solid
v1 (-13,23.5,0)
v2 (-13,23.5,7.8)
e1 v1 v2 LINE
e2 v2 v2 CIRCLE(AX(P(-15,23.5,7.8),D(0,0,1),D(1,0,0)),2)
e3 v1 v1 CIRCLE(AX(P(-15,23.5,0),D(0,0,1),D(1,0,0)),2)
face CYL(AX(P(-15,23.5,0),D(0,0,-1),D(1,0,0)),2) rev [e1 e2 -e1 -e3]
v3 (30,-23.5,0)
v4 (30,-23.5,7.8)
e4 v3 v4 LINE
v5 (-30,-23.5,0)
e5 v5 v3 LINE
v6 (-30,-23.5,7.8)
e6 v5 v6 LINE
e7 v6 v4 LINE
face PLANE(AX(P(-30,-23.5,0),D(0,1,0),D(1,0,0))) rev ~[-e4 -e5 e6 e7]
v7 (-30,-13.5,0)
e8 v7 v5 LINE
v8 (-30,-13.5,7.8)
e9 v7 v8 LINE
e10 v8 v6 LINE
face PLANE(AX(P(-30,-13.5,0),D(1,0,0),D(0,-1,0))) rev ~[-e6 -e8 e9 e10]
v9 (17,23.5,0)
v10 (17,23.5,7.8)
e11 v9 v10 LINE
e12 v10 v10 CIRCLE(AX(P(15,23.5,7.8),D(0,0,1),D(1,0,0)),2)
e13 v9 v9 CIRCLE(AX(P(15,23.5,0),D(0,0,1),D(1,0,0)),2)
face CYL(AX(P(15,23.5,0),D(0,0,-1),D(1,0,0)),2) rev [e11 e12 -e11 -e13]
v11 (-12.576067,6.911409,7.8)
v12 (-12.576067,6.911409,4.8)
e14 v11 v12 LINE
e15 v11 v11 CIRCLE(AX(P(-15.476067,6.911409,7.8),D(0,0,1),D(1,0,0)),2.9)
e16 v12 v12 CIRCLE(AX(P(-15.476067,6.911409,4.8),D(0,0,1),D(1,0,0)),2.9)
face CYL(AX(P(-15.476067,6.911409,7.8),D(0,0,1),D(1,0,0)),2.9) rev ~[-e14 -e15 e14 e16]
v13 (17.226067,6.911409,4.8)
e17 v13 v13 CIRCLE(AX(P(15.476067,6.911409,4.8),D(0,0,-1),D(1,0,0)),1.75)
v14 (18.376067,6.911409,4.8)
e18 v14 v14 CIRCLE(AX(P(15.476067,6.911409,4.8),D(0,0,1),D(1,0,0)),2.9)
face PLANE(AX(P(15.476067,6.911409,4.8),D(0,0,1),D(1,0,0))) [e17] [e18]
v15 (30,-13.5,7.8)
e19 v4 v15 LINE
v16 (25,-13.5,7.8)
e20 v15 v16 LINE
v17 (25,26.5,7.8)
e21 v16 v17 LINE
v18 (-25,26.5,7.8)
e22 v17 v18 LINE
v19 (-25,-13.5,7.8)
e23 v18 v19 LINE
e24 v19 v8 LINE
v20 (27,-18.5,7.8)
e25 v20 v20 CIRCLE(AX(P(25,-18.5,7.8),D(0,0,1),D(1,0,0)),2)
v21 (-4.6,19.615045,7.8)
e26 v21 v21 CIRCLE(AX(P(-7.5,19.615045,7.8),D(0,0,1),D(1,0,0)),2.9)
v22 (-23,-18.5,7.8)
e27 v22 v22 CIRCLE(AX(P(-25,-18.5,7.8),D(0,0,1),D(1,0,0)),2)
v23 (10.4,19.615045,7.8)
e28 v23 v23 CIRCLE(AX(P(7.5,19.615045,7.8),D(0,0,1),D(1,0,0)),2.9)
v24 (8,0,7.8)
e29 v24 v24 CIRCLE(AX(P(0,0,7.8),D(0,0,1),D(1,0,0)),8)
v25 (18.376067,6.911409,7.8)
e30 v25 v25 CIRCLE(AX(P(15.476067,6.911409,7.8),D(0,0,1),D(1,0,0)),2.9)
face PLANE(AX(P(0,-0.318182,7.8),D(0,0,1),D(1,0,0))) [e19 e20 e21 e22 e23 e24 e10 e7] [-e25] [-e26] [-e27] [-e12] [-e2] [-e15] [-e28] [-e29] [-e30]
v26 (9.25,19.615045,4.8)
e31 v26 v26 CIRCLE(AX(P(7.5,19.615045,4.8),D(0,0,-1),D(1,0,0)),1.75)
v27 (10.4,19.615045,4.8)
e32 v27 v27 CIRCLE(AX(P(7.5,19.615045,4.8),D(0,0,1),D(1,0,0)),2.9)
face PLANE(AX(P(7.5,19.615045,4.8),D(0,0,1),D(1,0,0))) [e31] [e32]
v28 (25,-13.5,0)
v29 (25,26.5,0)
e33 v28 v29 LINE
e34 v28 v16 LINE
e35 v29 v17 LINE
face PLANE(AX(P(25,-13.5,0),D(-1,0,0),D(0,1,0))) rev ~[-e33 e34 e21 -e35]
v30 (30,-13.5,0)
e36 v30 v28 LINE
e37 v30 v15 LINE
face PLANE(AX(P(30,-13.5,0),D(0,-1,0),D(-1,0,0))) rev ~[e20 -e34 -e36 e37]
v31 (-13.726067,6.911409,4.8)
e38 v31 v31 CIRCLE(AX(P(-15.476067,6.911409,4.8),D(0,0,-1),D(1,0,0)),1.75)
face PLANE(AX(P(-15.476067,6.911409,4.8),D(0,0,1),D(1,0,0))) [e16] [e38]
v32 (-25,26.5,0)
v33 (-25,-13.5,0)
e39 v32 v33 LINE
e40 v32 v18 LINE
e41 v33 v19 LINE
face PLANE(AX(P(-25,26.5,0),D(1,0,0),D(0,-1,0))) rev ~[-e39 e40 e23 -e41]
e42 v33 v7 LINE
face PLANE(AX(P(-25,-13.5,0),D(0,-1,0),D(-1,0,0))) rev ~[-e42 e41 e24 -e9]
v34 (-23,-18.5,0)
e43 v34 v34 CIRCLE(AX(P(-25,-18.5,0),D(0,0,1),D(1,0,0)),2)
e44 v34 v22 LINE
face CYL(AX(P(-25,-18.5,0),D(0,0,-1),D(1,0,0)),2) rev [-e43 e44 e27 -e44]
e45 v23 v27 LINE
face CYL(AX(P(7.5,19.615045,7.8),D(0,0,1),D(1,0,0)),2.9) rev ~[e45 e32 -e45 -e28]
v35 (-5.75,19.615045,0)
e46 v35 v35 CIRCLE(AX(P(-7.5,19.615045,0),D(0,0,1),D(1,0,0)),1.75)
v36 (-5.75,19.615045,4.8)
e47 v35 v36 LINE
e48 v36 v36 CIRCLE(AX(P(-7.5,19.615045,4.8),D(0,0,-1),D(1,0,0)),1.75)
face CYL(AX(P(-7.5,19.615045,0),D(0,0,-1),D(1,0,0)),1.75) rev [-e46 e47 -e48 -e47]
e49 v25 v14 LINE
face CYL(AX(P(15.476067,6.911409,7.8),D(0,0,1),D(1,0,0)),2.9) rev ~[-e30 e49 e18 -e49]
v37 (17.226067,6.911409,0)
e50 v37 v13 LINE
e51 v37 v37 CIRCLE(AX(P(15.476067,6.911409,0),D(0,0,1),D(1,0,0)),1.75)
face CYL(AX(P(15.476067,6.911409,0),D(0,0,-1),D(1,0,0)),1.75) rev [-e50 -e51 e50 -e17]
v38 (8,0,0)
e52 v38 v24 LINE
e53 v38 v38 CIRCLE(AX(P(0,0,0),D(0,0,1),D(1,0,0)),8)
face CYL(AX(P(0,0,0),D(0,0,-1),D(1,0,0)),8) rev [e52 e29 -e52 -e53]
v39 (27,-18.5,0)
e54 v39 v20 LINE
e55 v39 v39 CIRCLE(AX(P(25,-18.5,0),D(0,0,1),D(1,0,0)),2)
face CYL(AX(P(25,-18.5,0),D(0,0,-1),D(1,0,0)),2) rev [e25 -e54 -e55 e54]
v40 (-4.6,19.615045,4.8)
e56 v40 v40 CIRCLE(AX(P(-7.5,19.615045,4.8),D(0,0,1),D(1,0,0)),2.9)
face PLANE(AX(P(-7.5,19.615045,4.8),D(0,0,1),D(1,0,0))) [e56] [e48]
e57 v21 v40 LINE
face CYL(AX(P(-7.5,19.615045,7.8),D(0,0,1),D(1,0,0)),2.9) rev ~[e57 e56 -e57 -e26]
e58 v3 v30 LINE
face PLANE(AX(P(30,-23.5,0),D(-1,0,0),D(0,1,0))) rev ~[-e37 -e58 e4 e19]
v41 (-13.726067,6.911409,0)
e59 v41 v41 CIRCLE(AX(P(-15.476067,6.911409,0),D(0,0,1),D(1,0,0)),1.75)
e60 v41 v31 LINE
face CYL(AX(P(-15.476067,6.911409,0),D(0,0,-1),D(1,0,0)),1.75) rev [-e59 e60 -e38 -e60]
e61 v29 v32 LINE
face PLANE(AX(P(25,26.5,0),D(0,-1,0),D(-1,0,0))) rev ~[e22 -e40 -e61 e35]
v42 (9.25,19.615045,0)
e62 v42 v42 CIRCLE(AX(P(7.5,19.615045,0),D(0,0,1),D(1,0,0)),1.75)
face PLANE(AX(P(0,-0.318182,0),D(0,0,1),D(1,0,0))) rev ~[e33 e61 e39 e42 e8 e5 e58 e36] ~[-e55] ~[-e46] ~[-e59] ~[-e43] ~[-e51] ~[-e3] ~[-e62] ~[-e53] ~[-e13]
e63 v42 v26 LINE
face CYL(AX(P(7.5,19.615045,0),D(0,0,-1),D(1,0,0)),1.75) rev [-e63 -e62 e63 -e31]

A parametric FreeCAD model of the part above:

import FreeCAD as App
import Part
import Sketcher
Q = App.Units.Quantity


def add_polygon(sketch, points):
    """Adds a closed chain of lines whose ends are joined by coincident constraints."""
    first, n = sketch.GeometryCount, len(points)
    for a, b in zip(points, points[1:] + points[:1]):
        sketch.addGeometry(Part.LineSegment(App.Vector(*a, 0), App.Vector(*b, 0)), False)
    for i in range(n):
        sketch.addConstraint(Sketcher.Constraint("Coincident", first + i, 2, first + (i + 1) % n, 1))

doc = App.newDocument("Part")
body = doc.addObject("PartDesign::Body", "Body")

# Sketch on XY plane
sketch1 = body.newObject("Sketcher::SketchObject", "Sketch")
sketch1.AttachmentSupport = (doc.getObject("XY_Plane"), [""])
sketch1.MapMode = "FlatFace"
add_polygon(sketch1, [(30, -23.5), (30, -13.5), (25, -13.5), (25, 26.5), (-25, 26.5), (-25, -13.5), (-30, -13.5), (-30, -23.5)])  # lines 0-7
sketch1.addGeometry(Part.Circle(App.Vector(-25, -18.5, 0), App.Vector(0, 0, 1), 2), False)  # 8
sketch1.addGeometry(Part.Circle(App.Vector(25, -18.5, 0), App.Vector(0, 0, 1), 2), False)  # 9
sketch1.addGeometry(Part.Circle(App.Vector(0, 0, 0), App.Vector(0, 0, 1), 8), False)  # 10
sketch1.addGeometry(Part.Circle(App.Vector(-15.476067, 6.911409, 0), App.Vector(0, 0, 1), 1.75), False)  # 11
sketch1.addGeometry(Part.Circle(App.Vector(-15, 23.5, 0), App.Vector(0, 0, 1), 2), False)  # 12
sketch1.addGeometry(Part.Circle(App.Vector(-7.5, 19.615045, 0), App.Vector(0, 0, 1), 1.75), False)  # 13
sketch1.addGeometry(Part.Circle(App.Vector(15.476067, 6.911409, 0), App.Vector(0, 0, 1), 1.75), False)  # 14
sketch1.addGeometry(Part.Circle(App.Vector(7.5, 19.615045, 0), App.Vector(0, 0, 1), 1.75), False)  # 15
sketch1.addGeometry(Part.Circle(App.Vector(15, 23.5, 0), App.Vector(0, 0, 1), 2), False)  # 16
sketch1.addConstraint([
    Sketcher.Constraint("Vertical", 0),
    Sketcher.Constraint("Horizontal", 1),
    Sketcher.Constraint("Vertical", 2),
    Sketcher.Constraint("Horizontal", 3),
    Sketcher.Constraint("Vertical", 4),
    Sketcher.Constraint("Horizontal", 5),
    Sketcher.Constraint("Vertical", 6),
    Sketcher.Constraint("Horizontal", 7),
    Sketcher.Constraint("Coincident", 10, 3, -1, 1),
    Sketcher.Constraint("Equal", 8, 9),
    Sketcher.Constraint("Equal", 9, 12),
    Sketcher.Constraint("Equal", 11, 13),
    Sketcher.Constraint("Equal", 13, 14),
    Sketcher.Constraint("Equal", 14, 15),
    Sketcher.Constraint("Equal", 12, 16),
    Sketcher.Constraint("Symmetric", 8, 3, 9, 3, -2),
    Sketcher.Constraint("Symmetric", 11, 3, 14, 3, -2),
    Sketcher.Constraint("Symmetric", 13, 3, 15, 3, -2),
    Sketcher.Constraint("Symmetric", 12, 3, 16, 3, -2),
    Sketcher.Constraint("Symmetric", 1, 2, 4, 2, -2),
    Sketcher.Constraint("Vertical", 9, 3, 1, 2),
    Sketcher.Constraint("Equal", 1, 5),
    Sketcher.Constraint("Diameter", 8, Q("4 mm")),
    Sketcher.Constraint("Diameter", 10, Q("16 mm")),
    Sketcher.Constraint("Diameter", 11, Q("3.5 mm")),
    Sketcher.Constraint("DistanceX", 1, 2, 1, 1, Q("5 mm")),
    Sketcher.Constraint("DistanceX", 3, 2, 3, 1, Q("50 mm")),
    Sketcher.Constraint("DistanceY", 0, 1, 0, 2, Q("10 mm")),
    Sketcher.Constraint("DistanceY", 2, 1, 2, 2, Q("40 mm")),
    Sketcher.Constraint("DistanceX", 12, 3, -1, 1, Q("15 mm")),
    Sketcher.Constraint("DistanceY", 8, 3, 12, 3, Q("42 mm")),
    Sketcher.Constraint("DistanceX", 13, 3, 15, 3, Q("15 mm")),
    Sketcher.Constraint("DistanceY", 9, 3, 0, 2, Q("5 mm")),
    Sketcher.Constraint("DistanceY", 8, 3, -1, 1, Q("18.5 mm")),
    Sketcher.Constraint("DistanceY", -1, 1, 11, 3, Q("6.911409 mm")),
    Sketcher.Constraint("DistanceX", 11, 3, -1, 1, Q("15.476067 mm")),
    Sketcher.Constraint("DistanceY", -1, 1, 13, 3, Q("19.615045 mm")),
])
pad1 = body.newObject("PartDesign::Pad", "Pad")
pad1.Profile = sketch1
pad1.Length = 7.8

# Sketch on XY plane
sketch2 = body.newObject("Sketcher::SketchObject", "Sketch001")
sketch2.AttachmentSupport = (doc.getObject("XY_Plane"), [""])
sketch2.MapMode = "FlatFace"
sketch2.AttachmentOffset = App.Placement(App.Vector(0, 0, 7.8), App.Rotation())
sketch2.addGeometry([
    Part.Circle(App.Vector(-7.5, 19.615045, 0), App.Vector(0, 0, 1), 2.9),
    Part.Circle(App.Vector(7.5, 19.615045, 0), App.Vector(0, 0, 1), 2.9),
    Part.Circle(App.Vector(15.476067, 6.911409, 0), App.Vector(0, 0, 1), 2.9),
    Part.Circle(App.Vector(-15.476067, 6.911409, 0), App.Vector(0, 0, 1), 2.9),
], False)
sketch2.addConstraint([
    Sketcher.Constraint("Equal", 0, 1),
    Sketcher.Constraint("Equal", 1, 2),
    Sketcher.Constraint("Equal", 2, 3),
    Sketcher.Constraint("Symmetric", 0, 3, 1, 3, -2),
    Sketcher.Constraint("Symmetric", 2, 3, 3, 3, -2),
    Sketcher.Constraint("Diameter", 0, Q("5.8 mm")),
    Sketcher.Constraint("DistanceX", 0, 3, 1, 3, Q("15 mm")),
    Sketcher.Constraint("DistanceY", -1, 1, 2, 3, Q("6.911409 mm")),
    Sketcher.Constraint("DistanceY", -1, 1, 0, 3, Q("19.615045 mm")),
    Sketcher.Constraint("DistanceX", -1, 1, 2, 3, Q("15.476067 mm")),
])
pocket1 = body.newObject("PartDesign::Pocket", "Pocket")
pocket1.Profile = sketch2
pocket1.Length = 3

doc.recompute()
